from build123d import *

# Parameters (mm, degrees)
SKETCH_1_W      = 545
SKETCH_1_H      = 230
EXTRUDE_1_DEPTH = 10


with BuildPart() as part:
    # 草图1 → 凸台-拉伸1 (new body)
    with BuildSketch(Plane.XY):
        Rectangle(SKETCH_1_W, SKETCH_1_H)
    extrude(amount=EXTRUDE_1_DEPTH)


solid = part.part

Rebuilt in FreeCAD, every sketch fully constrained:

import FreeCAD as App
import Part
import Sketcher
from FreeCAD import Vector


def add_polygon(sketch, points):
    """Adds a closed chain of lines whose ends are joined by coincident constraints."""
    first, n = sketch.GeometryCount, len(points)
    for a, b in zip(points, points[1:] + points[:1]):
        sketch.addGeometry(Part.LineSegment(App.Vector(*a, 0), App.Vector(*b, 0)), False)
    for i in range(n):
        sketch.addConstraint(Sketcher.Constraint("Coincident", first + i, 2, first + (i + 1) % n, 1))

doc = App.newDocument("Part")
params = doc.addObject("Spreadsheet::Sheet", "Params")
for row, (alias, value) in enumerate([
    ("sketch1_width", "545 mm"),
    ("sketch1_height", "230 mm"),
    ("pad1_length", "10 mm"),
], start=1):
    params.set(f"A{row}", alias)
    params.set(f"B{row}", "=" + value)
    params.setAlias(f"B{row}", alias)

body = doc.addObject("PartDesign::Body", "Body")

# Sketch on XY plane
sketch1 = body.newObject("Sketcher::SketchObject", "Sketch")
sketch1.AttachmentSupport = (doc.getObject("XY_Plane"), [""])
sketch1.MapMode = "FlatFace"
add_polygon(sketch1, [(-272.5, 115), (-272.5, -115), (272.5, -115), (272.5, 115)])  # lines 0-3
sketch1.addConstraint([
    Sketcher.Constraint("Vertical", 0),
    Sketcher.Constraint("Horizontal", 1),
    Sketcher.Constraint("Vertical", 2),
    Sketcher.Constraint("Horizontal", 3),
    Sketcher.Constraint("Symmetric", 0, 2, 2, 2, -1, 1),
    Sketcher.Constraint("DistanceX", 1, 1, 1, 2, 545.0),
    Sketcher.Constraint("DistanceY", 0, 2, 0, 1, 230.0),
])
sketch1.setExpression("Constraints[9]", "Params.sketch1_width")
sketch1.setExpression("Constraints[10]", "Params.sketch1_height")
pad1 = body.newObject("PartDesign::Pad", "Pad")
pad1.Profile = sketch1
pad1.setExpression("Length", "Params.pad1_length")

doc.recompute()
